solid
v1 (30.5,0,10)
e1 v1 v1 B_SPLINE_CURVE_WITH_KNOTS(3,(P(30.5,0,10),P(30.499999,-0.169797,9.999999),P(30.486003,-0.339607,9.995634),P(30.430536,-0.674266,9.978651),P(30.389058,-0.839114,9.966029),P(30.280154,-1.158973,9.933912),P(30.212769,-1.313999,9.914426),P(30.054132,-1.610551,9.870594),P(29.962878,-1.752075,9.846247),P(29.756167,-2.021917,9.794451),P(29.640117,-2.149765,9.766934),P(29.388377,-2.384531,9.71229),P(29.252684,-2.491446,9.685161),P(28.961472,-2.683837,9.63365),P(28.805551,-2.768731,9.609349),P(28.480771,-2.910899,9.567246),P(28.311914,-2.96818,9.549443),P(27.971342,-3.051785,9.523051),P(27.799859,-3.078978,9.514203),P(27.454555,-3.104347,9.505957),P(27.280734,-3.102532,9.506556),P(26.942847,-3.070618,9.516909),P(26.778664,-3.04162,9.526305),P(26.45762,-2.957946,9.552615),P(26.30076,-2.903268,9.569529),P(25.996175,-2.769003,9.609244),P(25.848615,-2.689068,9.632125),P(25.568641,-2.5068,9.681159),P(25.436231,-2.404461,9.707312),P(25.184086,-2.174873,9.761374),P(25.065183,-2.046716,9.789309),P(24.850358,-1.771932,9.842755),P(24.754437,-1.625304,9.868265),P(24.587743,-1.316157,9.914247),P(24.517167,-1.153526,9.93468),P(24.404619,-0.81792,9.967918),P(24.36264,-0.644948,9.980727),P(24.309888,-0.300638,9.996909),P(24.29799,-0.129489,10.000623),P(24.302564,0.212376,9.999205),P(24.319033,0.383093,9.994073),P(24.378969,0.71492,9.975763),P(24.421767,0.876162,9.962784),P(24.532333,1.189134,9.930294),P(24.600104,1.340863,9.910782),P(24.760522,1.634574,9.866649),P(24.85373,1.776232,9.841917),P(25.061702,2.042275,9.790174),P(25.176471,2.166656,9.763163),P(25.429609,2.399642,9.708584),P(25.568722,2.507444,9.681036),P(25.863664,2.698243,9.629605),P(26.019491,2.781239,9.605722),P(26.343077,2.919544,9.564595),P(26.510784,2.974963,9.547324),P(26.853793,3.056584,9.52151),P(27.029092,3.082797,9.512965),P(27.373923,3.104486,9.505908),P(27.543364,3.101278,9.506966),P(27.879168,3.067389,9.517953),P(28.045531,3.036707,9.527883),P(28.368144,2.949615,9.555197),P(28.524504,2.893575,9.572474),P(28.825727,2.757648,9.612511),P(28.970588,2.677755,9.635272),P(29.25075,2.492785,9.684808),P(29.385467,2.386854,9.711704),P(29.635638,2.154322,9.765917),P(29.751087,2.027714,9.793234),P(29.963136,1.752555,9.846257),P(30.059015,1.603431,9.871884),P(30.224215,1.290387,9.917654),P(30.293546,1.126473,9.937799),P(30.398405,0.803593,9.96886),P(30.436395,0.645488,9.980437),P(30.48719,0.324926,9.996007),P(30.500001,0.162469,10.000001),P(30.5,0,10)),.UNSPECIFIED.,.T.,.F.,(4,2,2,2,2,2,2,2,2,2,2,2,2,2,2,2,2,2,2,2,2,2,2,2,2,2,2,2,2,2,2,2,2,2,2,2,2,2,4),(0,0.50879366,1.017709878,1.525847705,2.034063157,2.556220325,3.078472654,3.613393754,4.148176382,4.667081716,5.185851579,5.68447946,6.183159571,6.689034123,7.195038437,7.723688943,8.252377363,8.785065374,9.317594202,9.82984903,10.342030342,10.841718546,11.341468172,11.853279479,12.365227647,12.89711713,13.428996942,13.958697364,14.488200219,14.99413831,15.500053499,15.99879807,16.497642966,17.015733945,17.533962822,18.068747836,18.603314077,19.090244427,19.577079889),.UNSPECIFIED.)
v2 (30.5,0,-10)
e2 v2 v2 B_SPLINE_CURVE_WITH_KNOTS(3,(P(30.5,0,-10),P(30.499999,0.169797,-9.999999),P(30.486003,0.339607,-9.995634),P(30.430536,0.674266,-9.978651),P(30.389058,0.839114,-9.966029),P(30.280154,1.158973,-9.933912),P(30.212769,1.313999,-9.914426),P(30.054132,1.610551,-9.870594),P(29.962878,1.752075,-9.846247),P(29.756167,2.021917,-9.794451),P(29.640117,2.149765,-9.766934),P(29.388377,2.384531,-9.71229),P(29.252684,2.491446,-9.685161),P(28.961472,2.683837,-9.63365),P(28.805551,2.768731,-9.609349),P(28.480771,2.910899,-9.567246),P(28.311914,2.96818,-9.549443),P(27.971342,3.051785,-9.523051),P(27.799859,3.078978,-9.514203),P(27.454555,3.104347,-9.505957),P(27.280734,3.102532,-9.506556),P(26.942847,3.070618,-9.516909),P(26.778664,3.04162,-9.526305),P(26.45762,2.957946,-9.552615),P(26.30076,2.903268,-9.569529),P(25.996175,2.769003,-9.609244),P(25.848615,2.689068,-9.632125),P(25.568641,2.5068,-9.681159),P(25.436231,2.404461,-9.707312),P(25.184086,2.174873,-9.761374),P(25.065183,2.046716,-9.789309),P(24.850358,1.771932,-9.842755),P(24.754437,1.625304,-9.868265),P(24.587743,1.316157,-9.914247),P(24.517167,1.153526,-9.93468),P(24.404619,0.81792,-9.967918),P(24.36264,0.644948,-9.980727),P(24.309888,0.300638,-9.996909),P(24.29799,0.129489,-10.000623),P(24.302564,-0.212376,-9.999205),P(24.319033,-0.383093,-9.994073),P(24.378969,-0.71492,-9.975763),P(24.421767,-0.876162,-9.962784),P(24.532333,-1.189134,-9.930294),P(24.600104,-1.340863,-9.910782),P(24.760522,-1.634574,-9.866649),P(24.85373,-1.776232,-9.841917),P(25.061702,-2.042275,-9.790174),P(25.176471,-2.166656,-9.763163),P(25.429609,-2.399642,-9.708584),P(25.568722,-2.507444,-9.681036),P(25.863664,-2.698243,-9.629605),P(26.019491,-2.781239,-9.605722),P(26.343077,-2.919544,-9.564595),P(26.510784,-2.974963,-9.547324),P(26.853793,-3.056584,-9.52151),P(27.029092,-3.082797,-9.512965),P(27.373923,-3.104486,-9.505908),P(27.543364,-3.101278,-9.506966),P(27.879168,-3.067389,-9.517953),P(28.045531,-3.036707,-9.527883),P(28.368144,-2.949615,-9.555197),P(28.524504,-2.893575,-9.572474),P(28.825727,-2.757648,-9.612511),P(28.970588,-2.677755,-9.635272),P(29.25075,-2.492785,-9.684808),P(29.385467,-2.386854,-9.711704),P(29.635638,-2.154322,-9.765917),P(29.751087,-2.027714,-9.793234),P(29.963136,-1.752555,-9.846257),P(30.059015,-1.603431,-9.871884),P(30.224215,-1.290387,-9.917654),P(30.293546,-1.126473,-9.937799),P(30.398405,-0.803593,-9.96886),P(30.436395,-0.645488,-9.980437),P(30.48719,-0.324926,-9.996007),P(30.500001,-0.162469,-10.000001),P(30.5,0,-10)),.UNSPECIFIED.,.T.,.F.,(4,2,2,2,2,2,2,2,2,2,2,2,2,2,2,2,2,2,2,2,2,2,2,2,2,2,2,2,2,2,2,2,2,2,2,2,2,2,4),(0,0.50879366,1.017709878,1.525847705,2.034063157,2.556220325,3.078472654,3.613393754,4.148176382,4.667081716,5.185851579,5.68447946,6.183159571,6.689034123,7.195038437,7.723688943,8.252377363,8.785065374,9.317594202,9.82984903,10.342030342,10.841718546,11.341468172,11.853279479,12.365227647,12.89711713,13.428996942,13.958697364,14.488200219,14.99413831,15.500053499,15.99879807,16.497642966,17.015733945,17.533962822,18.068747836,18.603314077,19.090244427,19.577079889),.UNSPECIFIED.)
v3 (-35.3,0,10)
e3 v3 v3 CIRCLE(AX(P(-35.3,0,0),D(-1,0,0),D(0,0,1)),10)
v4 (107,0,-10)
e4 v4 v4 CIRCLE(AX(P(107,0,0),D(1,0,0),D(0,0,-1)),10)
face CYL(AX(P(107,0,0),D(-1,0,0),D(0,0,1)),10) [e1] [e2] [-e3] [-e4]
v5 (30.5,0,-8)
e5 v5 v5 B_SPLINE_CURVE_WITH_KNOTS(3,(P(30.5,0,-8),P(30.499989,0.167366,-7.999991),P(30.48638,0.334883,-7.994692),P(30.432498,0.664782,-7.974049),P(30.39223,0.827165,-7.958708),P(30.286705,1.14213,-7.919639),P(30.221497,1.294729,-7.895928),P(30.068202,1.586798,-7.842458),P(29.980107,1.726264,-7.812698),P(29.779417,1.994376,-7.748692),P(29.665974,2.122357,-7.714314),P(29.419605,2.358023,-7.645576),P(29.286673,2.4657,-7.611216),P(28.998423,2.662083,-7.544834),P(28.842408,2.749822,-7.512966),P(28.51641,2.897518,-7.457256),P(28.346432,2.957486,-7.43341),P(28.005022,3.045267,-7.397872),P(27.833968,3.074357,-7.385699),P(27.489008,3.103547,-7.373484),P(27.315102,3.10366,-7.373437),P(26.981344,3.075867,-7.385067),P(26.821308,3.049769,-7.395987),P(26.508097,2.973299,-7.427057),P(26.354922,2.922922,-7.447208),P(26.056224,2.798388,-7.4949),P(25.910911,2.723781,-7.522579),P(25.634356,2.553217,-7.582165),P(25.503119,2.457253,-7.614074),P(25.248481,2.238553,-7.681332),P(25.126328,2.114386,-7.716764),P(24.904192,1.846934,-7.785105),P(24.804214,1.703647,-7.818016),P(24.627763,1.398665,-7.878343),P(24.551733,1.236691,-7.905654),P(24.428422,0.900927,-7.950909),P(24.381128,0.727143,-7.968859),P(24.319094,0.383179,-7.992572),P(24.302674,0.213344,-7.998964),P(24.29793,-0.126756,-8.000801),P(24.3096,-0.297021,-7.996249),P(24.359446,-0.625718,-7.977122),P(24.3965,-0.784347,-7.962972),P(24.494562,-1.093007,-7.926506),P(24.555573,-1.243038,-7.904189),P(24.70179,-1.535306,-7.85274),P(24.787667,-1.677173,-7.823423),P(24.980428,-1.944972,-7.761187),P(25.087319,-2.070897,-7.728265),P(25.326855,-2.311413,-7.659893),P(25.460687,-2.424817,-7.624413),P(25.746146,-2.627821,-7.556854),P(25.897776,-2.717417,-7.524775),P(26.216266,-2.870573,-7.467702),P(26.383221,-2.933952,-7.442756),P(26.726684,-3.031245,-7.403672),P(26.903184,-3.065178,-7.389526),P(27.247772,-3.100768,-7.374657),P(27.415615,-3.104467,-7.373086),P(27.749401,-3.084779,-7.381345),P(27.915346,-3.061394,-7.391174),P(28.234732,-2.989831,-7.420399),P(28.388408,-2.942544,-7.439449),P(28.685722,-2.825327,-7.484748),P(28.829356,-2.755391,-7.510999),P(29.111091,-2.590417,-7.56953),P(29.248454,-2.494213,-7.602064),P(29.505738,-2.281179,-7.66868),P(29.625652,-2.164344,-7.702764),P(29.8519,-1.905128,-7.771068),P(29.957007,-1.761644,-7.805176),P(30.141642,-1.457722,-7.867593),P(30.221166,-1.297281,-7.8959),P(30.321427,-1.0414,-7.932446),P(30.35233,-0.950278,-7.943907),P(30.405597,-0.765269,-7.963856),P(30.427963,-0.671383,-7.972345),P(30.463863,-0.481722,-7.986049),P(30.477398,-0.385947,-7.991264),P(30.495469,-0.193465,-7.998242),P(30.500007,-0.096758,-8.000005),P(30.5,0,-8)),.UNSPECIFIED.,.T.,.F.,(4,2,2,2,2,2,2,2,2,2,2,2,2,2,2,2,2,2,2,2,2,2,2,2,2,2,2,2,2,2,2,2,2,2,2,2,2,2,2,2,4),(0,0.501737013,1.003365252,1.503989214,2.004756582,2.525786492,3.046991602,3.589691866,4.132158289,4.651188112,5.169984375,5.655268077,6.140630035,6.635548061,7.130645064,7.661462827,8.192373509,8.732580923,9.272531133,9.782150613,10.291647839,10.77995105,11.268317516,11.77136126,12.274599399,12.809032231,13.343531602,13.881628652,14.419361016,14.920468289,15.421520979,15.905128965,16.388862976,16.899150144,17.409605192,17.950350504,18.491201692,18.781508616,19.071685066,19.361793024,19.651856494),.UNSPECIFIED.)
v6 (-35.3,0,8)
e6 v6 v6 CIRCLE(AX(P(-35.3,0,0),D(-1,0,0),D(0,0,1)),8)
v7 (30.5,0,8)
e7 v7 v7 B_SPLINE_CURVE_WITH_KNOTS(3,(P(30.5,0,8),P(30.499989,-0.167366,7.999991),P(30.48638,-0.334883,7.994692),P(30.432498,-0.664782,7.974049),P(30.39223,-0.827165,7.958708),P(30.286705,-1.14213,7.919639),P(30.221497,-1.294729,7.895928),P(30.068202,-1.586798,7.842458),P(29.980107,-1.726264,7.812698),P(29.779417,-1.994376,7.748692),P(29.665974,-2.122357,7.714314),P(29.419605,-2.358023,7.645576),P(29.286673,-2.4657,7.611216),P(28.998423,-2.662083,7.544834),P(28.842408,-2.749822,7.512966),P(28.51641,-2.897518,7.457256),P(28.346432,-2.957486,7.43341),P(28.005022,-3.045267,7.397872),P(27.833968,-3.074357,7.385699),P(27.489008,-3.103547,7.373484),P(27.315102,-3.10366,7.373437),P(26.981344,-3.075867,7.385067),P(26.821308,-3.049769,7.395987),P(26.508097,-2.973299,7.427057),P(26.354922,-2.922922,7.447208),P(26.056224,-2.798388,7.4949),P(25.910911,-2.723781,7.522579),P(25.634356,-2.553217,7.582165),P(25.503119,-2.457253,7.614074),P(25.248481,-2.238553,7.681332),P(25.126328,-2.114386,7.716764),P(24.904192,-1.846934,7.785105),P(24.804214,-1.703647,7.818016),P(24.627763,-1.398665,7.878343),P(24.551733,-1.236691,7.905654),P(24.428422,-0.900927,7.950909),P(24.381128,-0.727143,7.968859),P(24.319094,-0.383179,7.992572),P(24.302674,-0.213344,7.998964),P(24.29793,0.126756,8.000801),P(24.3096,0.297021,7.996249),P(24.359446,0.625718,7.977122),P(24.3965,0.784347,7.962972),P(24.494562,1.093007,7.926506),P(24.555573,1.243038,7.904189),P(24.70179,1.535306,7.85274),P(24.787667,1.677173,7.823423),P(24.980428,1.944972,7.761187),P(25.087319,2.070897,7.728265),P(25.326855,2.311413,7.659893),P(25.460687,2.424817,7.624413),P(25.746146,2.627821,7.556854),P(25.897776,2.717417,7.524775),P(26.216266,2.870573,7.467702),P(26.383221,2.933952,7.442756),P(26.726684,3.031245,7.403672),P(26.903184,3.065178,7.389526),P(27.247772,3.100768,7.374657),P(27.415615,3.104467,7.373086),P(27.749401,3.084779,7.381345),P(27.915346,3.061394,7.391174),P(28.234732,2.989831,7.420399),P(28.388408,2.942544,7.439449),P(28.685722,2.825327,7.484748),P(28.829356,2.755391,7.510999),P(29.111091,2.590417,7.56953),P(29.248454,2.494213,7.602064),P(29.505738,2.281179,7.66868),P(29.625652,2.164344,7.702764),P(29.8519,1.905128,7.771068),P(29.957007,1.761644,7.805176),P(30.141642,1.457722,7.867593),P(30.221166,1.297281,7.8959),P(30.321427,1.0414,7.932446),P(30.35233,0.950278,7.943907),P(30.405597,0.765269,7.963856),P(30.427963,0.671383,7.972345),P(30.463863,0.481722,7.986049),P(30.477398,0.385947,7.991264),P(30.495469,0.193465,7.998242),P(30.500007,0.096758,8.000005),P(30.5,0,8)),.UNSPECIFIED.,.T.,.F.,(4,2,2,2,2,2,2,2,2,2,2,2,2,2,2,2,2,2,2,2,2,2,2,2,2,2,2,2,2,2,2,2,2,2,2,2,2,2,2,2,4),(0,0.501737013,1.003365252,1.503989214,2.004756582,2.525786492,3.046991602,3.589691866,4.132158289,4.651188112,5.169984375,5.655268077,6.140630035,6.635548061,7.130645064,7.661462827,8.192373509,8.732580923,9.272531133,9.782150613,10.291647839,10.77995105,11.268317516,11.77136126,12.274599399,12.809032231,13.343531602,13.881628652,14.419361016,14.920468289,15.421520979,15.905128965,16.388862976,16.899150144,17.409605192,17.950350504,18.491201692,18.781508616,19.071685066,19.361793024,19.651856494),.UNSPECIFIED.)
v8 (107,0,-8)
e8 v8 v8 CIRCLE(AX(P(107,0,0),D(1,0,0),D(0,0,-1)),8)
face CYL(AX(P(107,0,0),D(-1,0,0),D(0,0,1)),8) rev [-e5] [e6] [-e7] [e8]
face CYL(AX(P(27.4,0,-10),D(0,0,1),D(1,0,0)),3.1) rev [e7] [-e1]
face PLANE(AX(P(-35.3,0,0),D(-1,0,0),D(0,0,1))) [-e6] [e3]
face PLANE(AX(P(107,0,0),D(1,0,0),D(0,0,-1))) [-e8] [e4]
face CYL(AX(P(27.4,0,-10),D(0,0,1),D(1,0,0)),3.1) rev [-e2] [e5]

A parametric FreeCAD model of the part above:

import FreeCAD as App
import Part
import Sketcher

doc = App.newDocument("Part")
body = doc.addObject("PartDesign::Body", "Body")

sketch1 = body.newObject("Sketcher::SketchObject", "Sketch")
sketch1.AttachmentSupport = (doc.getObject("YZ_Plane"), [""])
sketch1.MapMode = "FlatFace"
sketch1.addGeometry(Part.Circle(App.Vector(0, 0, 0), App.Vector(0, 0, 1), 10), False)
sketch1.addGeometry(Part.Circle(App.Vector(0, 0, 0), App.Vector(0, 0, 1), 8), False)
sketch1.addConstraint(Sketcher.Constraint("Coincident", 0, 3, -1, 1))
sketch1.addConstraint(Sketcher.Constraint("Coincident", 1, 3, -1, 1))
sketch1.addConstraint(Sketcher.Constraint("Diameter", 0, 20.0))
sketch1.addConstraint(Sketcher.Constraint("Diameter", 1, 16.0))
pad1 = body.newObject("PartDesign::Pad", "Pad")
pad1.Profile = sketch1
pad1.Length = 107

sketch2 = body.newObject("Sketcher::SketchObject", "Sketch001")
sketch2.AttachmentSupport = (doc.getObject("YZ_Plane"), [""])
sketch2.MapMode = "FlatFace"
sketch2.addGeometry(Part.Circle(App.Vector(0, 0, 0), App.Vector(0, 0, 1), 10), False)
sketch2.addGeometry(Part.Circle(App.Vector(0, 0, 0), App.Vector(0, 0, 1), 8), False)
sketch2.addConstraint(Sketcher.Constraint("Coincident", 0, 3, -1, 1))
sketch2.addConstraint(Sketcher.Constraint("Coincident", 1, 3, -1, 1))
sketch2.addConstraint(Sketcher.Constraint("Diameter", 0, 20.0))
sketch2.addConstraint(Sketcher.Constraint("Diameter", 1, 16.0))
pad2 = body.newObject("PartDesign::Pad", "Pad001")
pad2.Profile = sketch2
pad2.Length = 35.3
pad2.Reversed = True

sketch3 = body.newObject("Sketcher::SketchObject", "Sketch002")
sketch3.AttachmentSupport = (doc.getObject("XY_Plane"), [""])
sketch3.MapMode = "FlatFace"
sketch3.addGeometry(Part.Circle(App.Vector(27.4, 0, 0), App.Vector(0, 0, 1), 3.1), False)
sketch3.addConstraint(Sketcher.Constraint("PointOnObject", 0, 3, -1))
sketch3.addConstraint(Sketcher.Constraint("Diameter", 0, 6.2))
sketch3.addConstraint(Sketcher.Constraint("DistanceX", -1, 1, 0, 3, 27.4))
pocket1 = body.newObject("PartDesign::Pocket", "Pocket")
pocket1.Profile = sketch3
pocket1.Type = "ThroughAll"
pocket1.Midplane = True

doc.recompute()
